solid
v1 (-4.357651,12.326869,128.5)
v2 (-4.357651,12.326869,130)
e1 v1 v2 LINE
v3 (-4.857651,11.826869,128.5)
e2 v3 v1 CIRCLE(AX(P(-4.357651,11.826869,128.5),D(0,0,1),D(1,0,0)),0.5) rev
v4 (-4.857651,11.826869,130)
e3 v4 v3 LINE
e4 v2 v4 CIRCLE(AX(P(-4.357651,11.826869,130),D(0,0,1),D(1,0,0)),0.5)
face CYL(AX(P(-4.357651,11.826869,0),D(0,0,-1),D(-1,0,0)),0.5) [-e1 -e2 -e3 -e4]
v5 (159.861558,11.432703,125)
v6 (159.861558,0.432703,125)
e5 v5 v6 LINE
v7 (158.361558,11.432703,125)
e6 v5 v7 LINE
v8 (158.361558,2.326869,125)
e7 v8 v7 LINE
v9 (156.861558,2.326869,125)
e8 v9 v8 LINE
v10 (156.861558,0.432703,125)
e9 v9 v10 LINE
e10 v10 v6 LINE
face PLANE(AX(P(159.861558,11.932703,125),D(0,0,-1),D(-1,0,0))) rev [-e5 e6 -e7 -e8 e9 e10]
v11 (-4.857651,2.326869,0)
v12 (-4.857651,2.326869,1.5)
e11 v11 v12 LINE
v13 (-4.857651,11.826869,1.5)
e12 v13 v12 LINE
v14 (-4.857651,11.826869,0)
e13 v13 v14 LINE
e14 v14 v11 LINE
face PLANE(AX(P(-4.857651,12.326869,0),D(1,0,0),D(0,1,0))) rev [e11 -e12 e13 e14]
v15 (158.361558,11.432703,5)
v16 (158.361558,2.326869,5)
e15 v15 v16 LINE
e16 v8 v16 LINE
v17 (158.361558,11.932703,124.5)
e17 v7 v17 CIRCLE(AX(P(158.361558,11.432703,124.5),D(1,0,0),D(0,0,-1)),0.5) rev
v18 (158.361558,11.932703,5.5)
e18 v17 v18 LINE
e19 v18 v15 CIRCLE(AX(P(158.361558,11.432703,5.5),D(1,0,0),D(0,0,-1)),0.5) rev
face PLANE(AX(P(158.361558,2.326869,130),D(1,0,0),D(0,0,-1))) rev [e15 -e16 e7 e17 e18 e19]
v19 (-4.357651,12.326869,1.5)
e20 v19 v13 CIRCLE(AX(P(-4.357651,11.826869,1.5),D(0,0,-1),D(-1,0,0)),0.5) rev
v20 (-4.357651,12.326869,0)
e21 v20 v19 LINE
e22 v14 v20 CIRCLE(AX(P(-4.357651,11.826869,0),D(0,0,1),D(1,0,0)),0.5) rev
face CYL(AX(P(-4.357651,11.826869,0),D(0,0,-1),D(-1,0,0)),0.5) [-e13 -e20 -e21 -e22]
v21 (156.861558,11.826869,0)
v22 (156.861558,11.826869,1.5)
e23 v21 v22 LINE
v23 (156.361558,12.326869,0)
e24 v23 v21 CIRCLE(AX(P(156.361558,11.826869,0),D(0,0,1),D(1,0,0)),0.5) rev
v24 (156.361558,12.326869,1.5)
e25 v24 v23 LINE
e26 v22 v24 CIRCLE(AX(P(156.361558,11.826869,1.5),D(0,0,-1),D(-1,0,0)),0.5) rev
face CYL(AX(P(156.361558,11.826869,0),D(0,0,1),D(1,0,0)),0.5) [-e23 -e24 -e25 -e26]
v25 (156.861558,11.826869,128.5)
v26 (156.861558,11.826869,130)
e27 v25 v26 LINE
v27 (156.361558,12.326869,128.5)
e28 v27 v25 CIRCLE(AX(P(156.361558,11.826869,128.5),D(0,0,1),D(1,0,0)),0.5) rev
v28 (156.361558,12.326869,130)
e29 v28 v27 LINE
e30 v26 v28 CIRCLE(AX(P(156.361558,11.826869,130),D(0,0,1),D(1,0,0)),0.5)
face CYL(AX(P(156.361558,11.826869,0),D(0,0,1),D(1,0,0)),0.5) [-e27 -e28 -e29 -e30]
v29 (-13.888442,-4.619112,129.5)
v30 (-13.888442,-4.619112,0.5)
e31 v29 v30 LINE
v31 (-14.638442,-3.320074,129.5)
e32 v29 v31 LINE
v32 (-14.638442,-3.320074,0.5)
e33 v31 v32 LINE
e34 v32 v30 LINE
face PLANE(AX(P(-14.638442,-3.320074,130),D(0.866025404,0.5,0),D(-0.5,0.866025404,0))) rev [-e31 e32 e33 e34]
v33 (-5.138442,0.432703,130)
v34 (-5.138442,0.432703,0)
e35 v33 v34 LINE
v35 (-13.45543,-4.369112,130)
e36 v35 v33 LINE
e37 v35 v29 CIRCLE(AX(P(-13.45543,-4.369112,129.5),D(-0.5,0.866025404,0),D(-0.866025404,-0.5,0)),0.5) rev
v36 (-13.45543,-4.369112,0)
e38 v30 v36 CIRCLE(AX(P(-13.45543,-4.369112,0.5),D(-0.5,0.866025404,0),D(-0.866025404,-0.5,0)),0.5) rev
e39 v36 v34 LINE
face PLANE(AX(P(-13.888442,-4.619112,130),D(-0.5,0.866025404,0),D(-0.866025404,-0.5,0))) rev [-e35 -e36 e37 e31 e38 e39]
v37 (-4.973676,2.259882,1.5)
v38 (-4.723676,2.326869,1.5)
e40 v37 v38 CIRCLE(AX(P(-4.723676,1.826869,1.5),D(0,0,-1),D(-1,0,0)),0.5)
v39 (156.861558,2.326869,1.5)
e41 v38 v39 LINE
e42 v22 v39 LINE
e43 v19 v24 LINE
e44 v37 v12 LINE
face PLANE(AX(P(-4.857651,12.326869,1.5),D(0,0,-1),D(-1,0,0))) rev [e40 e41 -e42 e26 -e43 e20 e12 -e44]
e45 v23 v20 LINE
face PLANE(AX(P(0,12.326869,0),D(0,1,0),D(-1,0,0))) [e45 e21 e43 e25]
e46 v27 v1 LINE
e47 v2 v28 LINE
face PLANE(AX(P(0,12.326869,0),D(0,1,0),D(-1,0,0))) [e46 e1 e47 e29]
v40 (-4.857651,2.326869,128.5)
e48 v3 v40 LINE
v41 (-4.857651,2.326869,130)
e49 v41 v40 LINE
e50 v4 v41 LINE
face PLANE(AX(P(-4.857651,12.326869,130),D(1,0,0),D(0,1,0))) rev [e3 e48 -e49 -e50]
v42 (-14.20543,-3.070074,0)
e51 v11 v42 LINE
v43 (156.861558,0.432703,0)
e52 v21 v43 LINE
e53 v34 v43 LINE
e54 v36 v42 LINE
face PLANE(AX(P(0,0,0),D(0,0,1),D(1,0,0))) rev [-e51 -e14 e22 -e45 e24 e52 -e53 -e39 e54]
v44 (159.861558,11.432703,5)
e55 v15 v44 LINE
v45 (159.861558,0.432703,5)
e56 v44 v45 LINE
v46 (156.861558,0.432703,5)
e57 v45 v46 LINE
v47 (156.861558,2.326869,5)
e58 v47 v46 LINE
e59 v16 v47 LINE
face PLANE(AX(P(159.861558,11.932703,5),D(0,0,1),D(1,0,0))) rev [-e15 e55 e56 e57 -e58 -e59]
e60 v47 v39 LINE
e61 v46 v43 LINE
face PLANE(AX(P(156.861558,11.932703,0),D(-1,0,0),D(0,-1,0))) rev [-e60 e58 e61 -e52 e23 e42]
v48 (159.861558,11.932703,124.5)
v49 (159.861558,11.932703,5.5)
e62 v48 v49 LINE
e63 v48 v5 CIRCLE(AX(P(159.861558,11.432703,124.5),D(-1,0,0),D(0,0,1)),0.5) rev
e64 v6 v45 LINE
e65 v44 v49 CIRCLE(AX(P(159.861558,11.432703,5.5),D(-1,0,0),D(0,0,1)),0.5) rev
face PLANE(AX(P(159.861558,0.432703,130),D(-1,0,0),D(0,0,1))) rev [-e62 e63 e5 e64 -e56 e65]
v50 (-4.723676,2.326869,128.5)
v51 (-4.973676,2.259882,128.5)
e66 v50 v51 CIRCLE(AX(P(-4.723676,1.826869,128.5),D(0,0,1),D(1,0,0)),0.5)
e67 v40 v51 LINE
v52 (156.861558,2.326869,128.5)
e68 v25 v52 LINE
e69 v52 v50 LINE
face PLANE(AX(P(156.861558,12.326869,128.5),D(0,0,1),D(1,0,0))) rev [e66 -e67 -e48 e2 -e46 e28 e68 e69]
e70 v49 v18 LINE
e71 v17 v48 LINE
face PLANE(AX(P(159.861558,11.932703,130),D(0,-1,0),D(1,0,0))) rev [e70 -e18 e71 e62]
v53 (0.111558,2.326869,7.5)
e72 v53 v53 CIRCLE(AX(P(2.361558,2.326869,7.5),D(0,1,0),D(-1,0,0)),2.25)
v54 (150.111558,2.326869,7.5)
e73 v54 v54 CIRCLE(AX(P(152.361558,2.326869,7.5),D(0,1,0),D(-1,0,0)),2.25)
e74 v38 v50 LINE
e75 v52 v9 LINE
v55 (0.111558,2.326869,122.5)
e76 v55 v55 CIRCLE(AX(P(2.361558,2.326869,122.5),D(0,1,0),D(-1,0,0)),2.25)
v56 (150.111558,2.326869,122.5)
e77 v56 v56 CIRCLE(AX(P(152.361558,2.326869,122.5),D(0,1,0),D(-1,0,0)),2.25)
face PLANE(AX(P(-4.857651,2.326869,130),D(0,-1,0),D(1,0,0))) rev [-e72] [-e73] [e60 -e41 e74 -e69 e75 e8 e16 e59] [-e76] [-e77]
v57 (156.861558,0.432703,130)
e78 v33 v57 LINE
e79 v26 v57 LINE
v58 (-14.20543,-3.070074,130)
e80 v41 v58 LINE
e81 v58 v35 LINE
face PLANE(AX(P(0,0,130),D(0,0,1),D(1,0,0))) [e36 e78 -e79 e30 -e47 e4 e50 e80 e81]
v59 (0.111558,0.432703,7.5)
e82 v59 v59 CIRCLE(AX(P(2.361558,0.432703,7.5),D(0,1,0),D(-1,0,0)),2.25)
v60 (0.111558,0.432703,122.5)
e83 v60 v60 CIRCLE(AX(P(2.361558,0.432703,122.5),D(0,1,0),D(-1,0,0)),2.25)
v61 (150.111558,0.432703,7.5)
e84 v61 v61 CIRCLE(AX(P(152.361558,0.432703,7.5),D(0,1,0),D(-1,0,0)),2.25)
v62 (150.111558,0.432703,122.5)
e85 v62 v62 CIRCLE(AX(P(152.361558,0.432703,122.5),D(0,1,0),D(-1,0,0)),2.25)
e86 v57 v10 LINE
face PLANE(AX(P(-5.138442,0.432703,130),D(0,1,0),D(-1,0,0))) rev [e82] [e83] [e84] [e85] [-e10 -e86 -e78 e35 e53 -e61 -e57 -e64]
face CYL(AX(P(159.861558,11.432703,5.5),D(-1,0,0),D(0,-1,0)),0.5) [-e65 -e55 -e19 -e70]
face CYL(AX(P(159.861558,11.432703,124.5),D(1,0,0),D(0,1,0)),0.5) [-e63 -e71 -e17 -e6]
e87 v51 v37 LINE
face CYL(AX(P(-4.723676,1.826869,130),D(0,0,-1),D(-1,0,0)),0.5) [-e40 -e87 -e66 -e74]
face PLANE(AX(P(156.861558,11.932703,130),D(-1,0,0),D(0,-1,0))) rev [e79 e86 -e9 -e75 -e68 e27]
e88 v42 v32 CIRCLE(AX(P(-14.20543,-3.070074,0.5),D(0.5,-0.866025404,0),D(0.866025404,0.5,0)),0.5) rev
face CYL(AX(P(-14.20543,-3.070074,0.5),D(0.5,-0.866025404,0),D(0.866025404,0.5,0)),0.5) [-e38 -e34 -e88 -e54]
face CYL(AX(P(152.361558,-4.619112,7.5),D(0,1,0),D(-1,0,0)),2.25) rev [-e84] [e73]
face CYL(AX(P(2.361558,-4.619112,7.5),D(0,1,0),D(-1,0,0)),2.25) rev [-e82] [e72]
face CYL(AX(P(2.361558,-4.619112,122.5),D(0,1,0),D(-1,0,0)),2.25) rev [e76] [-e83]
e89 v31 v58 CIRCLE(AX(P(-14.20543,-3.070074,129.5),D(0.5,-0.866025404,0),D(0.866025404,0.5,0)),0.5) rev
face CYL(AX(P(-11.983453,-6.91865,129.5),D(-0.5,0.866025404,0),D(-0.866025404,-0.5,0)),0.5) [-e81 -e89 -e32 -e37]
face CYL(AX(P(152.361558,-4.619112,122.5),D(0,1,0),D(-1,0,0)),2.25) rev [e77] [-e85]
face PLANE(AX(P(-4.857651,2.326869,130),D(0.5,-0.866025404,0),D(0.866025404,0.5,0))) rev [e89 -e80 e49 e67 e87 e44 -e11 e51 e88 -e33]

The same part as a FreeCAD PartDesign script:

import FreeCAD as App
import Part
import Sketcher
from FreeCAD import Vector
Q = App.Units.Quantity


def edges_at(feature, points):
    """Names of the edges that pass closest to the given points."""
    edges = feature.Shape.Edges
    near = lambda p: min(range(len(edges)), key=lambda i: edges[i].distToShape(Part.Vertex(*p))[0])
    return sorted({f"Edge{near(p) + 1}" for p in points})

doc = App.newDocument("Part")
body = doc.addObject("PartDesign::Body", "Body")

sketch1 = doc.addObject("Sketcher::SketchObject", "Sketch")
body.addObject(sketch1)
sketch1.AttachmentSupport = (doc.XY_Plane, [""])
sketch1.MapMode = "FlatFace"
sketch1.addGeometry(Part.LineSegment(Vector(-4.9, 2.3, 0), Vector(-14.6, -3.3, 0)), False)
sketch1.addGeometry(Part.LineSegment(Vector(-14.6, -3.3, 0), Vector(-13.9, -4.6, 0)), False)
sketch1.addGeometry(Part.LineSegment(Vector(-13.9, -4.6, 0), Vector(-5.1, 0.4, 0)), False)
sketch1.addGeometry(Part.LineSegment(Vector(-5.1, 0.4, 0), Vector(159.9, 0.4, 0)), False)
sketch1.addGeometry(Part.LineSegment(Vector(159.9, 0.4, 0), Vector(159.9, 11.9, 0)), False)
sketch1.addGeometry(Part.LineSegment(Vector(159.9, 11.9, 0), Vector(158.4, 11.9, 0)), False)
sketch1.addGeometry(Part.LineSegment(Vector(158.4, 11.9, 0), Vector(158.4, 2.3, 0)), False)
sketch1.addGeometry(Part.LineSegment(Vector(158.4, 2.3, 0), Vector(-4.9, 2.3, 0)), False)
sketch1.addConstraint(Sketcher.Constraint("Coincident", 0, 2, 1, 1))
sketch1.addConstraint(Sketcher.Constraint("Coincident", 1, 2, 2, 1))
sketch1.addConstraint(Sketcher.Constraint("Coincident", 2, 2, 3, 1))
sketch1.addConstraint(Sketcher.Constraint("Coincident", 3, 2, 4, 1))
sketch1.addConstraint(Sketcher.Constraint("Coincident", 4, 2, 5, 1))
sketch1.addConstraint(Sketcher.Constraint("Coincident", 5, 2, 6, 1))
sketch1.addConstraint(Sketcher.Constraint("Coincident", 6, 2, 7, 1))
sketch1.addConstraint(Sketcher.Constraint("Coincident", 7, 2, 0, 1))
sketch1.addConstraint(Sketcher.Constraint("Horizontal", 3))
sketch1.addConstraint(Sketcher.Constraint("Vertical", 4))
sketch1.addConstraint(Sketcher.Constraint("Horizontal", 5))
sketch1.addConstraint(Sketcher.Constraint("Vertical", 6))
sketch1.addConstraint(Sketcher.Constraint("Horizontal", 7))
sketch1.addConstraint(Sketcher.Constraint("Perpendicular", 0, 1))
sketch1.addConstraint(Sketcher.Constraint("Perpendicular", 1, 2))
sketch1.addConstraint(Sketcher.Constraint("DistanceX", 3, 1, 3, 2, 165.0))
sketch1.addConstraint(Sketcher.Constraint("Angle", 0, Q("-150 deg")))
sketch1.addConstraint(Sketcher.Constraint("DistanceX", 5, 2, 5, 1, 1.5))
sketch1.addConstraint(Sketcher.Constraint("DistanceY", 4, 1, 4, 2, 11.5))
sketch1.addConstraint(Sketcher.Constraint("DistanceX", 0, 2, 5, 2, 173.0))
sketch1.addConstraint(Sketcher.Constraint("Distance", 1, 1.5))
sketch1.addConstraint(Sketcher.Constraint("DistanceX", 7, 2, 7, 1, 163.219208))
sketch1.addConstraint(Sketcher.Constraint("DistanceY", 1, 2, -1, 1, 4.619112))
sketch1.addConstraint(Sketcher.Constraint("DistanceX", 7, 2, -1, 1, 4.857651))
pad1 = doc.addObject("PartDesign::Pad", "Pad")
body.addObject(pad1)
pad1.Profile = sketch1
pad1.Length = 130

sketch2 = doc.addObject("Sketcher::SketchObject", "Sketch001")
body.addObject(sketch2)
sketch2.AttachmentSupport = (doc.XZ_Plane, [""])
sketch2.MapMode = "FlatFace"
sketch2.AttachmentOffset = App.Placement(Vector(0, 0, -0.432703), App.Rotation())
sketch2.addGeometry(Part.LineSegment(Vector(156.9, 130, 0), Vector(156.9, 125, 0)), False)
sketch2.addGeometry(Part.LineSegment(Vector(156.9, 125, 0), Vector(159.9, 125, 0)), False)
sketch2.addGeometry(Part.LineSegment(Vector(159.9, 125, 0), Vector(159.9, 130, 0)), False)
sketch2.addGeometry(Part.LineSegment(Vector(159.9, 130, 0), Vector(156.9, 130, 0)), False)
sketch2.addGeometry(Part.LineSegment(Vector(156.9, 5, 0), Vector(156.9, 0, 0)), False)
sketch2.addGeometry(Part.LineSegment(Vector(156.9, 0, 0), Vector(159.9, 0, 0)), False)
sketch2.addGeometry(Part.LineSegment(Vector(159.9, 0, 0), Vector(159.9, 5, 0)), False)
sketch2.addGeometry(Part.LineSegment(Vector(159.9, 5, 0), Vector(156.9, 5, 0)), False)
sketch2.addConstraint(Sketcher.Constraint("Coincident", 0, 2, 1, 1))
sketch2.addConstraint(Sketcher.Constraint("Coincident", 1, 2, 2, 1))
sketch2.addConstraint(Sketcher.Constraint("Coincident", 2, 2, 3, 1))
sketch2.addConstraint(Sketcher.Constraint("Coincident", 3, 2, 0, 1))
sketch2.addConstraint(Sketcher.Constraint("Coincident", 4, 2, 5, 1))
sketch2.addConstraint(Sketcher.Constraint("Coincident", 5, 2, 6, 1))
sketch2.addConstraint(Sketcher.Constraint("Coincident", 6, 2, 7, 1))
sketch2.addConstraint(Sketcher.Constraint("Coincident", 7, 2, 4, 1))
sketch2.addConstraint(Sketcher.Constraint("Vertical", 0))
sketch2.addConstraint(Sketcher.Constraint("Horizontal", 1))
sketch2.addConstraint(Sketcher.Constraint("Vertical", 2))
sketch2.addConstraint(Sketcher.Constraint("Horizontal", 3))
sketch2.addConstraint(Sketcher.Constraint("Vertical", 4))
sketch2.addConstraint(Sketcher.Constraint("Horizontal", 5))
sketch2.addConstraint(Sketcher.Constraint("Vertical", 6))
sketch2.addConstraint(Sketcher.Constraint("Horizontal", 7))
sketch2.addConstraint(Sketcher.Constraint("PointOnObject", 4, 2, -1))
sketch2.addConstraint(Sketcher.Constraint("Vertical", 3, 2, 4, 2))
sketch2.addConstraint(Sketcher.Constraint("Vertical", 2, 2, 5, 2))
sketch2.addConstraint(Sketcher.Constraint("Equal", 2, 4))
sketch2.addConstraint(Sketcher.Constraint("DistanceX", 1, 1, 1, 2, 3.0))
sketch2.addConstraint(Sketcher.Constraint("DistanceY", 0, 2, 0, 1, 5.0))
sketch2.addConstraint(Sketcher.Constraint("DistanceY", -1, 1, 0, 2, 125.0))
sketch2.addConstraint(Sketcher.Constraint("DistanceX", -1, 1, 0, 2, 156.861558))
pocket1 = doc.addObject("PartDesign::Pocket", "Pocket")
body.addObject(pocket1)
pocket1.Profile = sketch2
pocket1.Type = "ThroughAll"

sketch3 = doc.addObject("Sketcher::SketchObject", "Sketch002")
body.addObject(sketch3)
sketch3.AttachmentSupport = (doc.XZ_Plane, [""])
sketch3.MapMode = "FlatFace"
sketch3.AttachmentOffset = App.Placement(Vector(0, 0, -2.326869), App.Rotation())
sketch3.addGeometry(Part.LineSegment(Vector(-4.9, 128.5, 0), Vector(-4.9, 130, 0)), False)
sketch3.addGeometry(Part.LineSegment(Vector(-4.9, 130, 0), Vector(156.9, 130, 0)), False)
sketch3.addGeometry(Part.LineSegment(Vector(156.9, 130, 0), Vector(156.9, 128.5, 0)), False)
sketch3.addGeometry(Part.LineSegment(Vector(156.9, 128.5, 0), Vector(-4.9, 128.5, 0)), False)
sketch3.addGeometry(Part.LineSegment(Vector(-4.9, 0, 0), Vector(-4.9, 1.5, 0)), False)
sketch3.addGeometry(Part.LineSegment(Vector(-4.9, 1.5, 0), Vector(156.9, 1.5, 0)), False)
sketch3.addGeometry(Part.LineSegment(Vector(156.9, 1.5, 0), Vector(156.9, 0, 0)), False)
sketch3.addGeometry(Part.LineSegment(Vector(156.9, 0, 0), Vector(-4.9, 0, 0)), False)
sketch3.addConstraint(Sketcher.Constraint("Coincident", 0, 2, 1, 1))
sketch3.addConstraint(Sketcher.Constraint("Coincident", 1, 2, 2, 1))
sketch3.addConstraint(Sketcher.Constraint("Coincident", 2, 2, 3, 1))
sketch3.addConstraint(Sketcher.Constraint("Coincident", 3, 2, 0, 1))
sketch3.addConstraint(Sketcher.Constraint("Coincident", 4, 2, 5, 1))
sketch3.addConstraint(Sketcher.Constraint("Coincident", 5, 2, 6, 1))
sketch3.addConstraint(Sketcher.Constraint("Coincident", 6, 2, 7, 1))
sketch3.addConstraint(Sketcher.Constraint("Coincident", 7, 2, 4, 1))
sketch3.addConstraint(Sketcher.Constraint("Vertical", 0))
sketch3.addConstraint(Sketcher.Constraint("Horizontal", 1))
sketch3.addConstraint(Sketcher.Constraint("Vertical", 2))
sketch3.addConstraint(Sketcher.Constraint("Horizontal", 3))
sketch3.addConstraint(Sketcher.Constraint("Vertical", 4))
sketch3.addConstraint(Sketcher.Constraint("Horizontal", 5))
sketch3.addConstraint(Sketcher.Constraint("Vertical", 6))
sketch3.addConstraint(Sketcher.Constraint("Horizontal", 7))
sketch3.addConstraint(Sketcher.Constraint("PointOnObject", 6, 2, -1))
sketch3.addConstraint(Sketcher.Constraint("Vertical", 3, 2, 4, 2))
sketch3.addConstraint(Sketcher.Constraint("Vertical", 2, 2, 5, 2))
sketch3.addConstraint(Sketcher.Constraint("Equal", 2, 4))
sketch3.addConstraint(Sketcher.Constraint("DistanceY", 0, 1, 0, 2, 1.5))
sketch3.addConstraint(Sketcher.Constraint("DistanceY", -1, 1, 0, 2, 130.0))
sketch3.addConstraint(Sketcher.Constraint("DistanceX", 1, 1, 1, 2, 161.719208))
sketch3.addConstraint(Sketcher.Constraint("DistanceX", 0, 2, -1, 1, 4.857651))
pad2 = doc.addObject("PartDesign::Pad", "Pad001")
body.addObject(pad2)
pad2.Profile = sketch3
pad2.Length = 10
pad2.Reversed = True

sketch4 = doc.addObject("Sketcher::SketchObject", "Sketch003")
body.addObject(sketch4)
sketch4.AttachmentSupport = (doc.XZ_Plane, [""])
sketch4.MapMode = "FlatFace"
sketch4.AttachmentOffset = App.Placement(Vector(0, 0, -2.326869), App.Rotation())
sketch4.addGeometry(Part.Circle(Vector(2.4, 122.5, 0), Vector(0, 0, 1), 2.2), False)
sketch4.addGeometry(Part.Circle(Vector(2.4, 7.5, 0), Vector(0, 0, 1), 2.2), False)
sketch4.addGeometry(Part.Circle(Vector(152.4, 7.5, 0), Vector(0, 0, 1), 2.2), False)
sketch4.addGeometry(Part.Circle(Vector(152.4, 122.5, 0), Vector(0, 0, 1), 2.2), False)
sketch4.addConstraint(Sketcher.Constraint("Equal", 0, 1))
sketch4.addConstraint(Sketcher.Constraint("Equal", 1, 2))
sketch4.addConstraint(Sketcher.Constraint("Equal", 2, 3))
sketch4.addConstraint(Sketcher.Constraint("Horizontal", 1, 3, 2, 3))
sketch4.addConstraint(Sketcher.Constraint("Horizontal", 0, 3, 3, 3))
sketch4.addConstraint(Sketcher.Constraint("Vertical", 0, 3, 1, 3))
sketch4.addConstraint(Sketcher.Constraint("Vertical", 2, 3, 3, 3))
sketch4.addConstraint(Sketcher.Constraint("Diameter", 0, 4.5))
sketch4.addConstraint(Sketcher.Constraint("DistanceY", 1, 3, 0, 3, 115.0))
sketch4.addConstraint(Sketcher.Constraint("DistanceX", 1, 3, 2, 3, 150.0))
sketch4.addConstraint(Sketcher.Constraint("DistanceY", -1, 1, 0, 3, 122.5))
sketch4.addConstraint(Sketcher.Constraint("DistanceX", -1, 1, 0, 3, 2.361558))
pocket2 = doc.addObject("PartDesign::Pocket", "Pocket001")
body.addObject(pocket2)
pocket2.Profile = sketch4
pocket2.Type = "ThroughAll"
pocket2.Reversed = True
doc.recompute()

fillet = doc.addObject("PartDesign::Fillet", "Fillet")
body.addObject(fillet)
fillet.Base = (pocket2, edges_at(pocket2, [
    (-14.263, -3.97, 130),
    (159.112, 11.933, 125),
    (159.112, 11.933, 5),
    (-4.858, 2.327, 65),
    (156.862, 12.327, 129.25),
    (-4.858, 12.327, 129.25),
    (-4.858, 12.327, 0.75),
    (156.862, 12.327, 0.75),
    (-14.263, -3.97, 0),
]))
fillet.Radius = 0.5

doc.recompute()
